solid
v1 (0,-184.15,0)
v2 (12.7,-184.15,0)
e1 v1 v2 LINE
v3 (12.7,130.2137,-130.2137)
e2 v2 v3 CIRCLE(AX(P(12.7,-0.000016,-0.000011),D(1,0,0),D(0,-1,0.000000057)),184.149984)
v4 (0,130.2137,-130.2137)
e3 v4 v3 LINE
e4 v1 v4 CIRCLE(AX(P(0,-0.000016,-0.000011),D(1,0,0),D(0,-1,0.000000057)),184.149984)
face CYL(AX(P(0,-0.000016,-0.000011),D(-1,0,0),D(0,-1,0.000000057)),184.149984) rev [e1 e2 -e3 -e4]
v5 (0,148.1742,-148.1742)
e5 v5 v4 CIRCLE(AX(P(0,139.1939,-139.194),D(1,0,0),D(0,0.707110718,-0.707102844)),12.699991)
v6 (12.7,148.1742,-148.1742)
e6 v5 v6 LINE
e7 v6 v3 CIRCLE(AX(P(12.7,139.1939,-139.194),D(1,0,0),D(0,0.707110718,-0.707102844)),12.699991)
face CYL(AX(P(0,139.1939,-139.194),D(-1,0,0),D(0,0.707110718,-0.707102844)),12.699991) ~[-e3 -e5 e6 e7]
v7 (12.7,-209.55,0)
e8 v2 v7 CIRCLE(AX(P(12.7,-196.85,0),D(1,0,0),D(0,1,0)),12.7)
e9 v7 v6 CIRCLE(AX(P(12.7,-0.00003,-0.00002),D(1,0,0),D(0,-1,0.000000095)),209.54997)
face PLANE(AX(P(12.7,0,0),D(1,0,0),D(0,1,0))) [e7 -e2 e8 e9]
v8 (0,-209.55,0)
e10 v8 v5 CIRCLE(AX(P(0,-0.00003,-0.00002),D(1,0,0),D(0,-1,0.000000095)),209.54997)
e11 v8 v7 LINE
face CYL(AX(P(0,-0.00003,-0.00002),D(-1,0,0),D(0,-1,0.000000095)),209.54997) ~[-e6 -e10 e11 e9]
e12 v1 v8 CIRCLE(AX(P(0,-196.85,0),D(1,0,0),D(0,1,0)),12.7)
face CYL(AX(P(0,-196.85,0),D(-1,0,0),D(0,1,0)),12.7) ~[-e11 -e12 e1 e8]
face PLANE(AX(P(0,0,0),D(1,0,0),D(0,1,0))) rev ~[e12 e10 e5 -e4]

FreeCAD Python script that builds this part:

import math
import FreeCAD as App
import Part
import Sketcher
Q = App.Units.Quantity

doc = App.newDocument("Part")
body = doc.addObject("PartDesign::Body", "Body")

sketch1 = body.newObject("Sketcher::SketchObject", "Sketch")
sketch1.AttachmentSupport = (doc.getObject("YZ_Plane"), [""])
sketch1.MapMode = "FlatFace"
sketch1.addGeometry([
    Part.ArcOfCircle(Part.Circle(App.Vector(-196.85, 0, 0), App.Vector(0, 0, 1), 12.7), math.radians(0), math.radians(180)),
    Part.ArcOfCircle(Part.Circle(App.Vector(0, 0, 0), App.Vector(0, 0, 1), 209.55), math.radians(180), math.radians(315)),
    Part.ArcOfCircle(Part.Circle(App.Vector(139.194, -139.194, 0), App.Vector(0, 0, 1), 12.699921), math.radians(-45), math.radians(135)),
    Part.ArcOfCircle(Part.Circle(App.Vector(0, 0, 0), App.Vector(0, 0, 1), 184.15), math.radians(180), math.radians(315)),
], False)
sketch1.addConstraint([
    Sketcher.Constraint("Tangent", 0, 2, 1, 1),
    Sketcher.Constraint("Tangent", 1, 2, 2, 1),
    Sketcher.Constraint("Tangent", 2, 2, 3, 2),
    Sketcher.Constraint("Tangent", 3, 1, 0, 1),
    Sketcher.Constraint("Coincident", 1, 3, -1, 1),
    Sketcher.Constraint("Coincident", 3, 3, -1, 1),
    Sketcher.Constraint("PointOnObject", 0, 3, -1),
    Sketcher.Constraint("Radius", 0, Q("0.5 in")),
    Sketcher.Constraint("Radius", 1, Q("8.25 in")),
    Sketcher.Constraint("DistanceX", -1, 1, 2, 3, 139.194),
])
pad1 = body.newObject("PartDesign::Pad", "Pad")
pad1.Profile = sketch1
pad1.Length = Q("0.5 in")

doc.recompute()
